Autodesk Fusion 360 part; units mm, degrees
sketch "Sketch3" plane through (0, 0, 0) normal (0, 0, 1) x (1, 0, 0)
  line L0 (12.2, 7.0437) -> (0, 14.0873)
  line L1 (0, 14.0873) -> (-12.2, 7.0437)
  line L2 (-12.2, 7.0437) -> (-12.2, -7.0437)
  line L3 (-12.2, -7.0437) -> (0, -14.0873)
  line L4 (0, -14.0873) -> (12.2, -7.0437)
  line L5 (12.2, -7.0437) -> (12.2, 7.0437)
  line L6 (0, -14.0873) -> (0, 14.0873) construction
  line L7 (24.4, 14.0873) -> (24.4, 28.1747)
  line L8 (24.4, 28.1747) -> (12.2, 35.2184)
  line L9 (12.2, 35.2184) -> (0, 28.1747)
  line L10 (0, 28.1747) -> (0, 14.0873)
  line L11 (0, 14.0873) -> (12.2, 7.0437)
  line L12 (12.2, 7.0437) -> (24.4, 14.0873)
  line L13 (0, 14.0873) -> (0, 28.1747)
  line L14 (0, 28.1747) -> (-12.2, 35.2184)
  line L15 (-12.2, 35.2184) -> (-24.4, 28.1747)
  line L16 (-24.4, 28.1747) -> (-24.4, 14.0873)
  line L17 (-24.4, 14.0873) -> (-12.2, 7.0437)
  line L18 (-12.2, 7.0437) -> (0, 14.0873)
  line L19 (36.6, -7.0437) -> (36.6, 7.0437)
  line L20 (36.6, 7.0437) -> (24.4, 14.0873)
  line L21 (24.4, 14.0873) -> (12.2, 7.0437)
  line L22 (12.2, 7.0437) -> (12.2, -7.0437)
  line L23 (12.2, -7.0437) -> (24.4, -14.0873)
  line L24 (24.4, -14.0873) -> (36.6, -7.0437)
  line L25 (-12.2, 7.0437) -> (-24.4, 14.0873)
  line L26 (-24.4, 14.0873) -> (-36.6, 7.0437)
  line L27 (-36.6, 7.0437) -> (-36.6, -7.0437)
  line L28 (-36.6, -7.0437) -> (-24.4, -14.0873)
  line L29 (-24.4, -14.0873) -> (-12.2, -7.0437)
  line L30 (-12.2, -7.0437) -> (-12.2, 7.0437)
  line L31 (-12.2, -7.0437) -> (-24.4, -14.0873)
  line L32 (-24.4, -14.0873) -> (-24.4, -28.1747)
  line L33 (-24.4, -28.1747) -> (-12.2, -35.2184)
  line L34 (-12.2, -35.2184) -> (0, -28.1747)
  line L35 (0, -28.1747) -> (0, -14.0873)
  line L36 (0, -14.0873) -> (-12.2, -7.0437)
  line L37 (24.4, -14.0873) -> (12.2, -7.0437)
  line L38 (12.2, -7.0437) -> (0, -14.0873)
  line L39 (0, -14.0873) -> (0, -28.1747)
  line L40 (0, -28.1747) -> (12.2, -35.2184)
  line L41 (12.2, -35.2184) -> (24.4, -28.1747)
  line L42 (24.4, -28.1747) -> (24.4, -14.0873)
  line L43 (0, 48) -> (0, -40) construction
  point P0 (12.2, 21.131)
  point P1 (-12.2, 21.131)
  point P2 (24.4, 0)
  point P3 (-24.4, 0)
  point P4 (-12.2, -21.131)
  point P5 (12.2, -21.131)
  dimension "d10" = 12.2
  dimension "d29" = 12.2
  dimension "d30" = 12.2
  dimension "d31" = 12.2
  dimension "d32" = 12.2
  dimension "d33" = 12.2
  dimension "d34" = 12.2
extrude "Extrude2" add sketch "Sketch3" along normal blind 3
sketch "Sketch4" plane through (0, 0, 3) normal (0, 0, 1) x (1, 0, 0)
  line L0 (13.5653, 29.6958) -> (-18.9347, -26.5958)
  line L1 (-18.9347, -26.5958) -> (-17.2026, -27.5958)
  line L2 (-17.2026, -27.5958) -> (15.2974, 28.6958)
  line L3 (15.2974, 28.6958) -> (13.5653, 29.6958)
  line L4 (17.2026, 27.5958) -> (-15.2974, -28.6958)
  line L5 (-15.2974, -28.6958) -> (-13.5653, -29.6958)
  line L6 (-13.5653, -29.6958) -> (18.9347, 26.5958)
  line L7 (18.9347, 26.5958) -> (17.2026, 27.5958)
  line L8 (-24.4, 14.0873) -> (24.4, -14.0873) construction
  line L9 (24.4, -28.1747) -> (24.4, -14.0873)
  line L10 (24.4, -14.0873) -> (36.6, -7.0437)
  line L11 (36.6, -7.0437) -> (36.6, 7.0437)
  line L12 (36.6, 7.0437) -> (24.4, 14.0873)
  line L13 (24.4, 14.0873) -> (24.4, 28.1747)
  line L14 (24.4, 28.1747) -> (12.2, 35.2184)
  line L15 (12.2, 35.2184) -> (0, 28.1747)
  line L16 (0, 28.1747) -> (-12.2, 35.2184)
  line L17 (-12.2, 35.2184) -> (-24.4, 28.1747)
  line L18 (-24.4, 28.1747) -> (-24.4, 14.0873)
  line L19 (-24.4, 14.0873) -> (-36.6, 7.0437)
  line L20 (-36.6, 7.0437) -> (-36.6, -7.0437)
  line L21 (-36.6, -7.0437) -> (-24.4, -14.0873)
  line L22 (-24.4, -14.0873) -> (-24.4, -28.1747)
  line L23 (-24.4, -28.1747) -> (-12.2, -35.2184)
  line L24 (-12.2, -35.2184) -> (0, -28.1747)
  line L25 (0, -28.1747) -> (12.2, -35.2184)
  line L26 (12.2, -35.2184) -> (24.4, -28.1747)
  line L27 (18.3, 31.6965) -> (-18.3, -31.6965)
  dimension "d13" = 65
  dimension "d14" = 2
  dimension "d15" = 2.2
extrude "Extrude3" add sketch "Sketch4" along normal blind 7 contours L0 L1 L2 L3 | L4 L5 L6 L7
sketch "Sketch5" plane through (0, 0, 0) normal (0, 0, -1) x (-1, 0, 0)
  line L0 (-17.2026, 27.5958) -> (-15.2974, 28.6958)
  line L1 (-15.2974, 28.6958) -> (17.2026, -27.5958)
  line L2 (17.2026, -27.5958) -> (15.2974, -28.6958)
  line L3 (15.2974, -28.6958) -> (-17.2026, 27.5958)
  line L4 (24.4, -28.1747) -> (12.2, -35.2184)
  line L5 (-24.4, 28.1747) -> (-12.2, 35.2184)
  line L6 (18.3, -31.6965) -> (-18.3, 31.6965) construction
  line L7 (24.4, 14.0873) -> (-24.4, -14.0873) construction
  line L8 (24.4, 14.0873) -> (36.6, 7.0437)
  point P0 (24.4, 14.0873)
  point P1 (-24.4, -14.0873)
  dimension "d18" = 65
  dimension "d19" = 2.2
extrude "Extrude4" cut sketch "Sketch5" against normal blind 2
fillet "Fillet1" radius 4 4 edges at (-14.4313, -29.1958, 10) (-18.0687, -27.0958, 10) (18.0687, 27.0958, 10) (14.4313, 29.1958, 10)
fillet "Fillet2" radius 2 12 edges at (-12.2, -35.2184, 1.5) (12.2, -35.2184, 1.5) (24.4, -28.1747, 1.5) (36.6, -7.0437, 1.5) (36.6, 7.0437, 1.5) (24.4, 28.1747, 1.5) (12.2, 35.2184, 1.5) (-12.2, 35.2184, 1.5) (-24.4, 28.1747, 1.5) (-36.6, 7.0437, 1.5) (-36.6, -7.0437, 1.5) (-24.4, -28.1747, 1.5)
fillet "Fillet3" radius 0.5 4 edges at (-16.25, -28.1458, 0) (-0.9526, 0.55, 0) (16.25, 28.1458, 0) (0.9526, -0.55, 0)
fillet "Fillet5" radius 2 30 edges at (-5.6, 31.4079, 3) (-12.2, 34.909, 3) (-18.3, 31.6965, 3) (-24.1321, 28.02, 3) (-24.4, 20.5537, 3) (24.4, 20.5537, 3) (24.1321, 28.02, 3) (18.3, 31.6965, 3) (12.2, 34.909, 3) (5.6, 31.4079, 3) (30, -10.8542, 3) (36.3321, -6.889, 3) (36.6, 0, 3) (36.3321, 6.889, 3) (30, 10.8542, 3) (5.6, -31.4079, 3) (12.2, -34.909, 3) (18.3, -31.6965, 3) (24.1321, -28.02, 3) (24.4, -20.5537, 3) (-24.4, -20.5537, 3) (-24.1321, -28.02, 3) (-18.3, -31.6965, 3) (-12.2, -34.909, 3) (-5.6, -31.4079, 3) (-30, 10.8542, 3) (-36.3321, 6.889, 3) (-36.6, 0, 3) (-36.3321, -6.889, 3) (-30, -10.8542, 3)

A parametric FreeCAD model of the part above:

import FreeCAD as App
import Part
import Sketcher
from FreeCAD import Vector
Q = App.Units.Quantity


def edges_at(feature, points):
    """Names of the edges that pass closest to the given points."""
    edges = feature.Shape.Edges
    near = lambda p: min(range(len(edges)), key=lambda i: edges[i].distToShape(Part.Vertex(*p))[0])
    return sorted({f"Edge{near(p) + 1}" for p in points})


def add_polygon(sketch, points):
    """Adds a closed chain of lines whose ends are joined by coincident constraints."""
    first, n = sketch.GeometryCount, len(points)
    for a, b in zip(points, points[1:] + points[:1]):
        sketch.addGeometry(Part.LineSegment(App.Vector(*a, 0), App.Vector(*b, 0)), False)
    for i in range(n):
        sketch.addConstraint(Sketcher.Constraint("Coincident", first + i, 2, first + (i + 1) % n, 1))

doc = App.newDocument("Part")
body = doc.addObject("PartDesign::Body", "Body")

sketch1 = body.newObject("Sketcher::SketchObject", "Sketch")
sketch1.AttachmentSupport = (doc.getObject("XY_Plane"), [""])
sketch1.MapMode = "FlatFace"
add_polygon(sketch1, [(37, 7), (24, 14), (24, 28), (12, 35), (0, 28), (-12, 35), (-24, 28), (-24, 14), (-37, 7), (-37, -7), (-24, -14), (-24, -28), (-12, -35), (0, -28), (12, -35), (24, -28), (24, -14), (37, -7)])
sketch1.addConstraint([
    Sketcher.Constraint("Vertical", 1),
    Sketcher.Constraint("Vertical", 6),
    Sketcher.Constraint("Vertical", 8),
    Sketcher.Constraint("Vertical", 10),
    Sketcher.Constraint("Vertical", 15),
    Sketcher.Constraint("Vertical", 17),
    Sketcher.Constraint("Symmetric", 0, 2, 9, 2, -1, 1),
    Sketcher.Constraint("Symmetric", 2, 2, 11, 2, -1, 1),
    Sketcher.Constraint("Symmetric", 3, 2, 12, 2, -1, 1),
    Sketcher.Constraint("Symmetric", 4, 2, 13, 2, -1, 1),
    Sketcher.Constraint("Symmetric", 5, 2, 14, 2, -1, 1),
    Sketcher.Constraint("Symmetric", 7, 2, 16, 2, -1, 1),
    Sketcher.Constraint("Symmetric", 2, 2, 4, 2, -2),
    Sketcher.Constraint("Symmetric", 1, 2, 5, 2, -2),
    Sketcher.Constraint("PointOnObject", 3, 2, -2),
    Sketcher.Constraint("Parallel", 0, 2),
    Sketcher.Constraint("Parallel", 2, 4),
    Sketcher.Constraint("Parallel", 5, 7),
    Sketcher.Constraint("Parallel", 4, 9),
    Sketcher.Constraint("Parallel", 9, 11),
    Sketcher.Constraint("Parallel", 14, 16),
    Sketcher.Constraint("Horizontal", 1, 2, 3, 2),
    Sketcher.Constraint("Horizontal", 0, 2, 6, 2),
    Sketcher.Constraint("Equal", 6, 8),
    Sketcher.Constraint("Equal", 0, 2),
    Sketcher.Constraint("DistanceX", -1, 1, 2, 2, Q("12.2 mm")),
    Sketcher.Constraint("Angle", 0, Q("150.0003 deg")),
    Sketcher.Constraint("DistanceY", 1, 1, 1, 2, Q("14.0874 mm")),
])
pad1 = body.newObject("PartDesign::Pad", "Pad")
pad1.Profile = sketch1
pad1.Length = 3

sketch2 = body.newObject("Sketcher::SketchObject", "Sketch001")
sketch2.AttachmentSupport = (doc.getObject("XY_Plane"), [""])
sketch2.MapMode = "FlatFace"
sketch2.AttachmentOffset = App.Placement(Vector(0, 0, 3), App.Rotation())
add_polygon(sketch2, [(15.3, 28.7), (13.6, 29.7), (-18.9, -26.6), (-17.2, -27.6)])
add_polygon(sketch2, [(18.9, 26.6), (17.2, 27.6), (-15.3, -28.7), (-13.6, -29.7)])
sketch2.addConstraint([
    Sketcher.Constraint("Symmetric", 2, 2, 4, 2, -1, 1),
    Sketcher.Constraint("Symmetric", 3, 2, 5, 2, -1, 1),
    Sketcher.Constraint("Symmetric", 0, 2, 6, 2, -1, 1),
    Sketcher.Constraint("Symmetric", 1, 2, 7, 2, -1, 1),
    Sketcher.Constraint("Perpendicular", 0, 1),
    Sketcher.Constraint("Perpendicular", 1, 2),
    Sketcher.Constraint("Perpendicular", 2, 3),
    Sketcher.Constraint("Distance", 0, Q("2 mm")),
    Sketcher.Constraint("Distance", 1, Q("65 mm")),
    Sketcher.Constraint("Angle", 0, Q("150.0007 deg")),
    Sketcher.Constraint("DistanceY", 4, 2, 3, 2, Q("1.1 mm")),
    Sketcher.Constraint("DistanceX", -1, 1, 0, 2, Q("13.5653 mm")),
])
pad2 = body.newObject("PartDesign::Pad", "Pad001")
pad2.Profile = sketch2
pad2.Length = 7

sketch3 = body.newObject("Sketcher::SketchObject", "Sketch002")
sketch3.AttachmentSupport = (doc.getObject("XY_Plane"), [""])
sketch3.MapMode = "FlatFace"
add_polygon(sketch3, [(15.3, 28.7), (17.2, 27.6), (-15.3, -28.7), (-17.2, -27.6)])
sketch3.addConstraint([
    Sketcher.Constraint("Symmetric", 0, 2, 2, 2, -1, 1),
    Sketcher.Constraint("Symmetric", 1, 2, 3, 2, -1, 1),
    Sketcher.Constraint("Perpendicular", 0, 1),
    Sketcher.Constraint("Distance", 1, Q("65 mm")),
    Sketcher.Constraint("Distance", 0, Q("2.2 mm")),
    Sketcher.Constraint("Angle", 0, Q("-30.0007 deg")),
])
pocket1 = body.newObject("PartDesign::Pocket", "Pocket")
pocket1.Profile = sketch3
pocket1.Length = 2
pocket1.Reversed = True
doc.recompute()

fillet = body.newObject("PartDesign::Fillet", "Fillet")
fillet.Base = (pocket1, edges_at(pocket1, [
    (-14.431, -29.196, 10),
    (-18.069, -27.096, 10),
    (18.069, 27.096, 10),
    (14.431, 29.196, 10),
]))
fillet.Radius = 4
doc.recompute()

fillet2 = body.newObject("PartDesign::Fillet", "Fillet001")
fillet2.Base = (fillet, edges_at(fillet, [
    (-12.2, -35.218, 1.5),
    (12.2, -35.218, 1.5),
    (24.4, -28.175, 1.5),
    (36.6, -7.044, 1.5),
    (36.6, 7.044, 1.5),
    (24.4, 28.175, 1.5),
    (12.2, 35.218, 1.5),
    (-12.2, 35.218, 1.5),
    (-24.4, 28.175, 1.5),
    (-36.6, 7.044, 1.5),
    (-36.6, -7.044, 1.5),
    (-24.4, -28.175, 1.5),
]))
fillet2.Radius = 2
doc.recompute()

fillet3 = body.newObject("PartDesign::Fillet", "Fillet002")
fillet3.Base = (fillet2, edges_at(fillet2, [
    (-16.25, -28.146, 0),
    (-0.953, 0.55, 0),
    (16.25, 28.146, 0),
    (0.953, -0.55, 0),
]))
fillet3.Radius = 0.5
doc.recompute()

fillet4 = body.newObject("PartDesign::Fillet", "Fillet003")
fillet4.Base = (fillet3, edges_at(fillet3, [
    (-5.6, 31.408, 3),
    (-12.2, 34.909, 3),
    (-18.3, 31.697, 3),
    (-24.132, 28.02, 3),
    (-24.4, 20.554, 3),
    (24.4, 20.554, 3),
    (24.132, 28.02, 3),
    (18.3, 31.697, 3),
    (12.2, 34.909, 3),
    (5.6, 31.408, 3),
    (30, -10.854, 3),
    (36.332, -6.889, 3),
    (36.6, 0, 3),
    (36.332, 6.889, 3),
    (30, 10.854, 3),
    (5.6, -31.408, 3),
    (12.2, -34.909, 3),
    (18.3, -31.697, 3),
    (24.132, -28.02, 3),
    (24.4, -20.554, 3),
    (-24.4, -20.554, 3),
    (-24.132, -28.02, 3),
    (-18.3, -31.697, 3),
    (-12.2, -34.909, 3),
    (-5.6, -31.408, 3),
    (-30, 10.854, 3),
    (-36.332, 6.889, 3),
    (-36.6, 0, 3),
    (-36.332, -6.889, 3),
    (-30, -10.854, 3),
]))
fillet4.Radius = 2

doc.recompute()
